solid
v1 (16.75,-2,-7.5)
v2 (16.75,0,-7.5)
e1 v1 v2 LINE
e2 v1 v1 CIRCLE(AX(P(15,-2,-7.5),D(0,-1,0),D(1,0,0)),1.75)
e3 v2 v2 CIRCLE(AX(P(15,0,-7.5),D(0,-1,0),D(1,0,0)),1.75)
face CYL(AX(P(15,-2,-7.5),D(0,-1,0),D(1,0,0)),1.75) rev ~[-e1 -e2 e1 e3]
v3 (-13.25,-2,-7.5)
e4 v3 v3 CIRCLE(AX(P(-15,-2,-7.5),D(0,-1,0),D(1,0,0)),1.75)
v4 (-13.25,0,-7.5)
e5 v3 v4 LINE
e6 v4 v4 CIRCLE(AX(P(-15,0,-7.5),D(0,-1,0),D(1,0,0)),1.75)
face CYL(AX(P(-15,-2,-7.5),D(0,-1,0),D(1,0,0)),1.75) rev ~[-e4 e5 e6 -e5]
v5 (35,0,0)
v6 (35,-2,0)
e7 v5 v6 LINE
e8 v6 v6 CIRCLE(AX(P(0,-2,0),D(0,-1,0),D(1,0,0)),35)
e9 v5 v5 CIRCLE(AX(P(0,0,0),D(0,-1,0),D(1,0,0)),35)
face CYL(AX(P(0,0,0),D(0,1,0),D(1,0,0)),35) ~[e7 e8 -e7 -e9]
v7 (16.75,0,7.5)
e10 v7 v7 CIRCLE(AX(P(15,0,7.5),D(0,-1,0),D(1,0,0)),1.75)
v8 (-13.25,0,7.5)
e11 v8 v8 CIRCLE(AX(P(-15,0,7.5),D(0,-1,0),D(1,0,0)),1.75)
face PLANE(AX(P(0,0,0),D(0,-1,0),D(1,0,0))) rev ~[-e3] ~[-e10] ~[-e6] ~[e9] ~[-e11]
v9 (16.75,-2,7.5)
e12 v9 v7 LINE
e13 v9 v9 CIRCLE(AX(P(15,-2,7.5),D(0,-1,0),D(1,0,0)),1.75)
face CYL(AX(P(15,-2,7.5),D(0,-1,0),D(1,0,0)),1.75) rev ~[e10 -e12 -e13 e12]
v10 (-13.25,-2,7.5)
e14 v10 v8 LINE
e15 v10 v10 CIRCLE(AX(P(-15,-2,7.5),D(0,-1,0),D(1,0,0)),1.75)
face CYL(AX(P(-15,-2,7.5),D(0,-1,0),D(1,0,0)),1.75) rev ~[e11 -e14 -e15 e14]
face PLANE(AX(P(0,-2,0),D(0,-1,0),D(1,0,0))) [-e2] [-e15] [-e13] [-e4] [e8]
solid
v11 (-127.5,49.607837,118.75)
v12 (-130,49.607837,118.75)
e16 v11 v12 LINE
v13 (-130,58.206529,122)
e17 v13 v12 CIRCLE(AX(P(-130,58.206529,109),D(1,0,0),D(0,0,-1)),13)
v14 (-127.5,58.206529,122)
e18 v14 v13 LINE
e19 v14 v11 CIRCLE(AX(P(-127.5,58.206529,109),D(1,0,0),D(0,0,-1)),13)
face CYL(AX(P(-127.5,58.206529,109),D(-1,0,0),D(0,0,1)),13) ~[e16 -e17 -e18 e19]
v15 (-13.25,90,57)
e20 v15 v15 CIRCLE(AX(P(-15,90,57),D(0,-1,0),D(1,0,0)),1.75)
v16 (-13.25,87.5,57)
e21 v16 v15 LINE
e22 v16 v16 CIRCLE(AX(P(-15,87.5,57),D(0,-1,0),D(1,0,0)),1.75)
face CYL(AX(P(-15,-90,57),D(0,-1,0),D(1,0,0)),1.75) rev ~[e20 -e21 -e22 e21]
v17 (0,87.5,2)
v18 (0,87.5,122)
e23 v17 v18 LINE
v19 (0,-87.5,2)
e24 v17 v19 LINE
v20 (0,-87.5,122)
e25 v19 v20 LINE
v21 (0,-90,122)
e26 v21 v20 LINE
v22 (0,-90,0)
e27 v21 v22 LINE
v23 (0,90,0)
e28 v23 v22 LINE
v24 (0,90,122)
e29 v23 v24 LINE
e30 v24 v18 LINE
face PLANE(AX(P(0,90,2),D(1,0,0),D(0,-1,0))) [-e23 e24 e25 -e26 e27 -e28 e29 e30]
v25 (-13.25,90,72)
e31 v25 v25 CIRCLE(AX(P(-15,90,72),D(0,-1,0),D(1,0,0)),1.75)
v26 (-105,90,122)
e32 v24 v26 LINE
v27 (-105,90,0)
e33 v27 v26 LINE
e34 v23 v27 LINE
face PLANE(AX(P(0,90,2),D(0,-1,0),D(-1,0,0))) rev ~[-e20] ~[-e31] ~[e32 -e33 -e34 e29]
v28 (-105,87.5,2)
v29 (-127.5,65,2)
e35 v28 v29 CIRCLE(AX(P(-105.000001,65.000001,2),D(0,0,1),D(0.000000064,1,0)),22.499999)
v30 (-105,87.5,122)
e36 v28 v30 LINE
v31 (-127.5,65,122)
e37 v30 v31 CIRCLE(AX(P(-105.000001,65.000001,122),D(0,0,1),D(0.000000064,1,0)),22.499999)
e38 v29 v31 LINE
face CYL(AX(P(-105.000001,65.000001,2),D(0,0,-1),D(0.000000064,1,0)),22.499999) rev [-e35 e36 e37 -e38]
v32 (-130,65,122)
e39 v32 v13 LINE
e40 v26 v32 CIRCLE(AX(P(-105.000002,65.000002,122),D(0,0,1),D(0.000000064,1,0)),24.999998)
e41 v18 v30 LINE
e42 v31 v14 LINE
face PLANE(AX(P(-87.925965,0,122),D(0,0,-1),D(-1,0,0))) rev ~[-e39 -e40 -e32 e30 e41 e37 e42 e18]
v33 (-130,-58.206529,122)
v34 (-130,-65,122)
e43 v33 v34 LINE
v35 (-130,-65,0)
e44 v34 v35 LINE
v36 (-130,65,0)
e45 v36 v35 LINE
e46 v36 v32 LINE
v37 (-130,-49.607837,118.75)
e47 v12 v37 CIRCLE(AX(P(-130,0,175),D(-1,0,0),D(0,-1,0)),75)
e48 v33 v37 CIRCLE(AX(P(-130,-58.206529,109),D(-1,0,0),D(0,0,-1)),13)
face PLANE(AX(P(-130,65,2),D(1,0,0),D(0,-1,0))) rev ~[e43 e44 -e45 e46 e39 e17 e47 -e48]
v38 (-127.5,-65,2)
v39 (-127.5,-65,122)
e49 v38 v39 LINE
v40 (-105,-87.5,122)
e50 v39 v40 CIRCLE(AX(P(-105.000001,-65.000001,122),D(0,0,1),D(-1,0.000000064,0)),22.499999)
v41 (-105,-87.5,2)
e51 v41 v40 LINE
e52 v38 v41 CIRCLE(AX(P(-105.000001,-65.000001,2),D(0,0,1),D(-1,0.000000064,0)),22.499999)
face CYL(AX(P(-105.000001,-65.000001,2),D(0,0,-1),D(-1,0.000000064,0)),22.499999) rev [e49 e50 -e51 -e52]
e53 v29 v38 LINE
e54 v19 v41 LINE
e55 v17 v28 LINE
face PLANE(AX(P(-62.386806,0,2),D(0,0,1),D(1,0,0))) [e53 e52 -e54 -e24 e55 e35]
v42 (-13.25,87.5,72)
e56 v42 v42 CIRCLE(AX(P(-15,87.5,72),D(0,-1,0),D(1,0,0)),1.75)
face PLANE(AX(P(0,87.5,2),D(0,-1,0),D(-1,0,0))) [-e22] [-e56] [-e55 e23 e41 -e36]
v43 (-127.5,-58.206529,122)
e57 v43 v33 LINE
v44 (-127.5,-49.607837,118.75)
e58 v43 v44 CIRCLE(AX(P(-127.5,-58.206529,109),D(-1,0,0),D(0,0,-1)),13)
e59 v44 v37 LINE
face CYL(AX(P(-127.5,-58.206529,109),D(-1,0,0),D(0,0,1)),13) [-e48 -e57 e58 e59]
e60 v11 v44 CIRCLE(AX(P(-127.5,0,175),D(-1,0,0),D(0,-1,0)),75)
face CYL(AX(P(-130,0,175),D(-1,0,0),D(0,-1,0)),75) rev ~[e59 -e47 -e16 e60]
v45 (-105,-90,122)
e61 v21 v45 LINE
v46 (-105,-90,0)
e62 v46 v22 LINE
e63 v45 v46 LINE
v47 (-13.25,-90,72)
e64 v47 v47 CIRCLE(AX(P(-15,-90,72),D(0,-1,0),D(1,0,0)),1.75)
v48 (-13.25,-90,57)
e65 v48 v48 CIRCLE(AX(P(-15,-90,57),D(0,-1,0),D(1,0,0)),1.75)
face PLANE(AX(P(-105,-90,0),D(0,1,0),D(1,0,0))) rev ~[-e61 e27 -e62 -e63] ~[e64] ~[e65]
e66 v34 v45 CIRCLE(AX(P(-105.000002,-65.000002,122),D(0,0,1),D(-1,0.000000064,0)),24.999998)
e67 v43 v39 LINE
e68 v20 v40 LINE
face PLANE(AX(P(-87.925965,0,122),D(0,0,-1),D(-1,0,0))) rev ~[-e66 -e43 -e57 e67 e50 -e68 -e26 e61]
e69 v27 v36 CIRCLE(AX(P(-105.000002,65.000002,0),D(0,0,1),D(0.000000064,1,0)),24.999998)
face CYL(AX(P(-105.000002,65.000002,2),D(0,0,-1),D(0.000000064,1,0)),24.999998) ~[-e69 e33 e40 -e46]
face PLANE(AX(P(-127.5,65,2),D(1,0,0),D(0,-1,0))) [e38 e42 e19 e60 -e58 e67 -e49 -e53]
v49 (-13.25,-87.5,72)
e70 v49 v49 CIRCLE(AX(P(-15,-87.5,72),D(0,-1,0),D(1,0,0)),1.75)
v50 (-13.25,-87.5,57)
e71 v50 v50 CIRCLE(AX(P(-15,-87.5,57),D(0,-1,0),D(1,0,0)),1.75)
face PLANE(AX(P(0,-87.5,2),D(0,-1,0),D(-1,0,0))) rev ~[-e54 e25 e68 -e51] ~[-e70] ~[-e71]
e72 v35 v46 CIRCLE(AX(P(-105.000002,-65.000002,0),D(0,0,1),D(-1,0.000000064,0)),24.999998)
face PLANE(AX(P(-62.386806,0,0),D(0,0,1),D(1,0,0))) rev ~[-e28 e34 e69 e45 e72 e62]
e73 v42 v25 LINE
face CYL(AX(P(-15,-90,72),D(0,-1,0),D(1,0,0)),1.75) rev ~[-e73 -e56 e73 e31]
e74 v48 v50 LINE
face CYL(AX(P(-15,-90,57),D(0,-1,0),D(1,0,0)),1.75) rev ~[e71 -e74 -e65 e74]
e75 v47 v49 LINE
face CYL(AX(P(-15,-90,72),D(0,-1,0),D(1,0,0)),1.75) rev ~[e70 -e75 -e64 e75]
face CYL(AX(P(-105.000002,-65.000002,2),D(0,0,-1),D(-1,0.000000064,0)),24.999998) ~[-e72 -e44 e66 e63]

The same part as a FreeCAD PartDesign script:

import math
import FreeCAD as App
import Part
import Sketcher

V = App.Vector


def edges_at(feature, points):
    """Names of the edges that pass closest to the given points."""
    edges = feature.Shape.Edges
    near = lambda p: min(range(len(edges)), key=lambda i: edges[i].distToShape(Part.Vertex(*p))[0])
    return sorted({f"Edge{near(p) + 1}" for p in points})

doc = App.newDocument("Part")
body = doc.addObject("PartDesign::Body", "Body")

sketch1 = body.newObject("Sketcher::SketchObject", "Sketch")
sketch1.AttachmentSupport = (doc.getObject("XY_Plane"), [""])
sketch1.MapMode = "FlatFace"
sketch1.addGeometry(Part.LineSegment(V(0, 90, 0), V(-105, 90, 0)), False)
sketch1.addGeometry(Part.ArcOfCircle(Part.Circle(V(-105, 65, 0), V(0, 0, 1), 25), math.radians(90), math.radians(180)), False)
sketch1.addGeometry(Part.LineSegment(V(-130, 65, 0), V(-130, -65, 0)), False)
sketch1.addGeometry(Part.ArcOfCircle(Part.Circle(V(-105, -65, 0), V(0, 0, 1), 25), math.radians(180), math.radians(270)), False)
sketch1.addGeometry(Part.LineSegment(V(-105, -90, 0), V(0, -90, 0)), False)
sketch1.addGeometry(Part.LineSegment(V(0, -90, 0), V(0, 90, 0)), False)
sketch1.addConstraint(Sketcher.Constraint("Tangent", 0, 2, 1, 1))
sketch1.addConstraint(Sketcher.Constraint("Tangent", 1, 2, 2, 1))
sketch1.addConstraint(Sketcher.Constraint("Tangent", 2, 2, 3, 1))
sketch1.addConstraint(Sketcher.Constraint("Tangent", 3, 2, 4, 1))
sketch1.addConstraint(Sketcher.Constraint("Coincident", 4, 2, 5, 1))
sketch1.addConstraint(Sketcher.Constraint("Coincident", 5, 2, 0, 1))
sketch1.addConstraint(Sketcher.Constraint("Horizontal", 0))
sketch1.addConstraint(Sketcher.Constraint("Vertical", 2))
sketch1.addConstraint(Sketcher.Constraint("Horizontal", 4))
sketch1.addConstraint(Sketcher.Constraint("Vertical", 5))
sketch1.addConstraint(Sketcher.Constraint("Equal", 1, 3))
sketch1.addConstraint(Sketcher.Constraint("Symmetric", 4, 2, 5, 2, -1, 1))
sketch1.addConstraint(Sketcher.Constraint("Radius", 1, 24.999998))
sketch1.addConstraint(Sketcher.Constraint("DistanceX", 0, 2, 0, 1, 105.0))
sketch1.addConstraint(Sketcher.Constraint("DistanceY", 2, 2, 2, 1, 130.0))
pad1 = body.newObject("PartDesign::Pad", "Pad")
pad1.Profile = sketch1
pad1.Length = 2

sketch2 = body.newObject("Sketcher::SketchObject", "Sketch001")
sketch2.AttachmentSupport = (doc.getObject("XY_Plane"), [""])
sketch2.MapMode = "FlatFace"
sketch2.AttachmentOffset = App.Placement(V(0, 0, 2), App.Rotation())
sketch2.addGeometry(Part.LineSegment(V(0, 87.5, 0), V(0, 90, 0)), False)
sketch2.addGeometry(Part.LineSegment(V(0, 90, 0), V(-105, 90, 0)), False)
sketch2.addGeometry(Part.ArcOfCircle(Part.Circle(V(-105, 65, 0), V(0, 0, 1), 25), math.radians(90), math.radians(180)), False)
sketch2.addGeometry(Part.LineSegment(V(-130, 65, 0), V(-130, -65, 0)), False)
sketch2.addGeometry(Part.ArcOfCircle(Part.Circle(V(-105, -65, 0), V(0, 0, 1), 25), math.radians(180), math.radians(270)), False)
sketch2.addGeometry(Part.LineSegment(V(-105, -90, 0), V(0, -90, 0)), False)
sketch2.addGeometry(Part.LineSegment(V(0, -90, 0), V(0, -87.5, 0)), False)
sketch2.addGeometry(Part.LineSegment(V(0, -87.5, 0), V(-105, -87.5, 0)), False)
sketch2.addGeometry(Part.ArcOfCircle(Part.Circle(V(-105, -65, 0), V(0, 0, 1), 22.5), math.radians(180), math.radians(270)), False)
sketch2.addGeometry(Part.LineSegment(V(-127.5, -65, 0), V(-127.5, 65, 0)), False)
sketch2.addGeometry(Part.ArcOfCircle(Part.Circle(V(-105, 65, 0), V(0, 0, 1), 22.5), math.radians(90), math.radians(180)), False)
sketch2.addGeometry(Part.LineSegment(V(-105, 87.5, 0), V(0, 87.5, 0)), False)
sketch2.addConstraint(Sketcher.Constraint("Coincident", 0, 2, 1, 1))
sketch2.addConstraint(Sketcher.Constraint("Tangent", 1, 2, 2, 1))
sketch2.addConstraint(Sketcher.Constraint("Tangent", 2, 2, 3, 1))
sketch2.addConstraint(Sketcher.Constraint("Tangent", 3, 2, 4, 1))
sketch2.addConstraint(Sketcher.Constraint("Tangent", 4, 2, 5, 1))
sketch2.addConstraint(Sketcher.Constraint("Coincident", 5, 2, 6, 1))
sketch2.addConstraint(Sketcher.Constraint("Coincident", 6, 2, 7, 1))
sketch2.addConstraint(Sketcher.Constraint("Tangent", 7, 2, 8, 2))
sketch2.addConstraint(Sketcher.Constraint("Tangent", 8, 1, 9, 1))
sketch2.addConstraint(Sketcher.Constraint("Tangent", 9, 2, 10, 2))
sketch2.addConstraint(Sketcher.Constraint("Tangent", 10, 1, 11, 1))
sketch2.addConstraint(Sketcher.Constraint("Coincident", 11, 2, 0, 1))
sketch2.addConstraint(Sketcher.Constraint("Vertical", 0))
sketch2.addConstraint(Sketcher.Constraint("Horizontal", 1))
sketch2.addConstraint(Sketcher.Constraint("Vertical", 3))
sketch2.addConstraint(Sketcher.Constraint("Horizontal", 5))
sketch2.addConstraint(Sketcher.Constraint("Vertical", 6))
sketch2.addConstraint(Sketcher.Constraint("Horizontal", 7))
sketch2.addConstraint(Sketcher.Constraint("Vertical", 9))
sketch2.addConstraint(Sketcher.Constraint("Horizontal", 11))
sketch2.addConstraint(Sketcher.Constraint("Coincident", 8, 3, 4, 3))
sketch2.addConstraint(Sketcher.Constraint("Coincident", 10, 3, 2, 3))
sketch2.addConstraint(Sketcher.Constraint("Equal", 2, 4))
sketch2.addConstraint(Sketcher.Constraint("Symmetric", 0, 2, 5, 2, -1, 1))
sketch2.addConstraint(Sketcher.Constraint("PointOnObject", 0, 2, -2))
sketch2.addConstraint(Sketcher.Constraint("Radius", 2, 24.999998))
sketch2.addConstraint(Sketcher.Constraint("Radius", 8, 22.499999))
sketch2.addConstraint(Sketcher.Constraint("DistanceX", 1, 2, 1, 1, 105.0))
sketch2.addConstraint(Sketcher.Constraint("DistanceY", 3, 2, 3, 1, 130.0))
pad2 = body.newObject("PartDesign::Pad", "Pad001")
pad2.Profile = sketch2
pad2.Length = 120

sketch3 = body.newObject("Sketcher::SketchObject", "Sketch002")
sketch3.AttachmentSupport = (doc.getObject("XZ_Plane"), [""])
sketch3.MapMode = "FlatFace"
sketch3.AttachmentOffset = App.Placement(V(0, 0, 90), App.Rotation())
sketch3.addGeometry(Part.Circle(V(-15, 72, 0), V(0, 0, 1), 1.8), False)
sketch3.addGeometry(Part.Circle(V(-15, 57, 0), V(0, 0, 1), 1.8), False)
sketch3.addConstraint(Sketcher.Constraint("Equal", 0, 1))
sketch3.addConstraint(Sketcher.Constraint("Vertical", 0, 3, 1, 3))
sketch3.addConstraint(Sketcher.Constraint("Diameter", 0, 3.5))
sketch3.addConstraint(Sketcher.Constraint("DistanceX", 0, 3, -1, 1, 15.0))
sketch3.addConstraint(Sketcher.Constraint("DistanceY", -1, 1, 0, 3, 72.0))
sketch3.addConstraint(Sketcher.Constraint("DistanceY", -1, 1, 1, 3, 57.0))
pocket1 = body.newObject("PartDesign::Pocket", "Pocket")
pocket1.Profile = sketch3
pocket1.Type = "ThroughAll"

sketch4 = body.newObject("Sketcher::SketchObject", "Sketch003")
sketch4.AttachmentSupport = (doc.getObject("YZ_Plane"), [""])
sketch4.MapMode = "FlatFace"
sketch4.AttachmentOffset = App.Placement(V(0, 0, -130), App.Rotation())
sketch4.addGeometry(Part.Circle(V(0, 175, 0), V(0, 0, 1), 75), False)
sketch4.addConstraint(Sketcher.Constraint("PointOnObject", 0, 3, -2))
sketch4.addConstraint(Sketcher.Constraint("Diameter", 0, 150.0))
sketch4.addConstraint(Sketcher.Constraint("DistanceY", -1, 1, 0, 3, 175.0))
pocket2 = body.newObject("PartDesign::Pocket", "Pocket001")
pocket2.Profile = sketch4
pocket2.Type = "ThroughAll"
pocket2.Reversed = True
doc.recompute()

fillet = body.newObject("PartDesign::Fillet", "Fillet")
fillet.Base = (pocket2, edges_at(pocket2, [(-128.75, 53.066, 122), (-128.75, -53.066, 122)]))
fillet.Radius = 13
body2 = doc.addObject("PartDesign::Body", "Body001")

sketch5 = body2.newObject("Sketcher::SketchObject", "Sketch004")
sketch5.AttachmentSupport = (doc.getObject("XZ_Plane001"), [""])
sketch5.MapMode = "FlatFace"
sketch5.addGeometry(Part.Circle(V(0, 0, 0), V(0, 0, 1), 35), False)
sketch5.addConstraint(Sketcher.Constraint("Coincident", 0, 3, -1, 1))
sketch5.addConstraint(Sketcher.Constraint("Diameter", 0, 70.0))
pad3 = body2.newObject("PartDesign::Pad", "Pad002")
pad3.Profile = sketch5
pad3.Length = 2

sketch6 = body2.newObject("Sketcher::SketchObject", "Sketch005")
sketch6.AttachmentSupport = (doc.getObject("XZ_Plane001"), [""])
sketch6.MapMode = "FlatFace"
sketch6.AttachmentOffset = App.Placement(V(0, 0, 2), App.Rotation())
sketch6.addGeometry(Part.Circle(V(-15, 7.5, 0), V(0, 0, 1), 1.8), False)
sketch6.addGeometry(Part.Circle(V(-15, -7.5, 0), V(0, 0, 1), 1.8), False)
sketch6.addGeometry(Part.Circle(V(15, -7.5, 0), V(0, 0, 1), 1.8), False)
sketch6.addGeometry(Part.Circle(V(15, 7.5, 0), V(0, 0, 1), 1.8), False)
sketch6.addConstraint(Sketcher.Constraint("Equal", 0, 1))
sketch6.addConstraint(Sketcher.Constraint("Equal", 1, 2))
sketch6.addConstraint(Sketcher.Constraint("Equal", 2, 3))
sketch6.addConstraint(Sketcher.Constraint("Symmetric", 0, 3, 2, 3, -1, 1))
sketch6.addConstraint(Sketcher.Constraint("Symmetric", 1, 3, 3, 3, -1, 1))
sketch6.addConstraint(Sketcher.Constraint("Symmetric", 1, 3, 2, 3, -2))
sketch6.addConstraint(Sketcher.Constraint("Diameter", 0, 3.5))
sketch6.addConstraint(Sketcher.Constraint("DistanceX", 0, 3, -1, 1, 15.0))
sketch6.addConstraint(Sketcher.Constraint("DistanceY", 1, 3, 0, 3, 15.0))
pocket3 = body2.newObject("PartDesign::Pocket", "Pocket002")
pocket3.Profile = sketch6
pocket3.Type = "ThroughAll"

doc.recompute()
